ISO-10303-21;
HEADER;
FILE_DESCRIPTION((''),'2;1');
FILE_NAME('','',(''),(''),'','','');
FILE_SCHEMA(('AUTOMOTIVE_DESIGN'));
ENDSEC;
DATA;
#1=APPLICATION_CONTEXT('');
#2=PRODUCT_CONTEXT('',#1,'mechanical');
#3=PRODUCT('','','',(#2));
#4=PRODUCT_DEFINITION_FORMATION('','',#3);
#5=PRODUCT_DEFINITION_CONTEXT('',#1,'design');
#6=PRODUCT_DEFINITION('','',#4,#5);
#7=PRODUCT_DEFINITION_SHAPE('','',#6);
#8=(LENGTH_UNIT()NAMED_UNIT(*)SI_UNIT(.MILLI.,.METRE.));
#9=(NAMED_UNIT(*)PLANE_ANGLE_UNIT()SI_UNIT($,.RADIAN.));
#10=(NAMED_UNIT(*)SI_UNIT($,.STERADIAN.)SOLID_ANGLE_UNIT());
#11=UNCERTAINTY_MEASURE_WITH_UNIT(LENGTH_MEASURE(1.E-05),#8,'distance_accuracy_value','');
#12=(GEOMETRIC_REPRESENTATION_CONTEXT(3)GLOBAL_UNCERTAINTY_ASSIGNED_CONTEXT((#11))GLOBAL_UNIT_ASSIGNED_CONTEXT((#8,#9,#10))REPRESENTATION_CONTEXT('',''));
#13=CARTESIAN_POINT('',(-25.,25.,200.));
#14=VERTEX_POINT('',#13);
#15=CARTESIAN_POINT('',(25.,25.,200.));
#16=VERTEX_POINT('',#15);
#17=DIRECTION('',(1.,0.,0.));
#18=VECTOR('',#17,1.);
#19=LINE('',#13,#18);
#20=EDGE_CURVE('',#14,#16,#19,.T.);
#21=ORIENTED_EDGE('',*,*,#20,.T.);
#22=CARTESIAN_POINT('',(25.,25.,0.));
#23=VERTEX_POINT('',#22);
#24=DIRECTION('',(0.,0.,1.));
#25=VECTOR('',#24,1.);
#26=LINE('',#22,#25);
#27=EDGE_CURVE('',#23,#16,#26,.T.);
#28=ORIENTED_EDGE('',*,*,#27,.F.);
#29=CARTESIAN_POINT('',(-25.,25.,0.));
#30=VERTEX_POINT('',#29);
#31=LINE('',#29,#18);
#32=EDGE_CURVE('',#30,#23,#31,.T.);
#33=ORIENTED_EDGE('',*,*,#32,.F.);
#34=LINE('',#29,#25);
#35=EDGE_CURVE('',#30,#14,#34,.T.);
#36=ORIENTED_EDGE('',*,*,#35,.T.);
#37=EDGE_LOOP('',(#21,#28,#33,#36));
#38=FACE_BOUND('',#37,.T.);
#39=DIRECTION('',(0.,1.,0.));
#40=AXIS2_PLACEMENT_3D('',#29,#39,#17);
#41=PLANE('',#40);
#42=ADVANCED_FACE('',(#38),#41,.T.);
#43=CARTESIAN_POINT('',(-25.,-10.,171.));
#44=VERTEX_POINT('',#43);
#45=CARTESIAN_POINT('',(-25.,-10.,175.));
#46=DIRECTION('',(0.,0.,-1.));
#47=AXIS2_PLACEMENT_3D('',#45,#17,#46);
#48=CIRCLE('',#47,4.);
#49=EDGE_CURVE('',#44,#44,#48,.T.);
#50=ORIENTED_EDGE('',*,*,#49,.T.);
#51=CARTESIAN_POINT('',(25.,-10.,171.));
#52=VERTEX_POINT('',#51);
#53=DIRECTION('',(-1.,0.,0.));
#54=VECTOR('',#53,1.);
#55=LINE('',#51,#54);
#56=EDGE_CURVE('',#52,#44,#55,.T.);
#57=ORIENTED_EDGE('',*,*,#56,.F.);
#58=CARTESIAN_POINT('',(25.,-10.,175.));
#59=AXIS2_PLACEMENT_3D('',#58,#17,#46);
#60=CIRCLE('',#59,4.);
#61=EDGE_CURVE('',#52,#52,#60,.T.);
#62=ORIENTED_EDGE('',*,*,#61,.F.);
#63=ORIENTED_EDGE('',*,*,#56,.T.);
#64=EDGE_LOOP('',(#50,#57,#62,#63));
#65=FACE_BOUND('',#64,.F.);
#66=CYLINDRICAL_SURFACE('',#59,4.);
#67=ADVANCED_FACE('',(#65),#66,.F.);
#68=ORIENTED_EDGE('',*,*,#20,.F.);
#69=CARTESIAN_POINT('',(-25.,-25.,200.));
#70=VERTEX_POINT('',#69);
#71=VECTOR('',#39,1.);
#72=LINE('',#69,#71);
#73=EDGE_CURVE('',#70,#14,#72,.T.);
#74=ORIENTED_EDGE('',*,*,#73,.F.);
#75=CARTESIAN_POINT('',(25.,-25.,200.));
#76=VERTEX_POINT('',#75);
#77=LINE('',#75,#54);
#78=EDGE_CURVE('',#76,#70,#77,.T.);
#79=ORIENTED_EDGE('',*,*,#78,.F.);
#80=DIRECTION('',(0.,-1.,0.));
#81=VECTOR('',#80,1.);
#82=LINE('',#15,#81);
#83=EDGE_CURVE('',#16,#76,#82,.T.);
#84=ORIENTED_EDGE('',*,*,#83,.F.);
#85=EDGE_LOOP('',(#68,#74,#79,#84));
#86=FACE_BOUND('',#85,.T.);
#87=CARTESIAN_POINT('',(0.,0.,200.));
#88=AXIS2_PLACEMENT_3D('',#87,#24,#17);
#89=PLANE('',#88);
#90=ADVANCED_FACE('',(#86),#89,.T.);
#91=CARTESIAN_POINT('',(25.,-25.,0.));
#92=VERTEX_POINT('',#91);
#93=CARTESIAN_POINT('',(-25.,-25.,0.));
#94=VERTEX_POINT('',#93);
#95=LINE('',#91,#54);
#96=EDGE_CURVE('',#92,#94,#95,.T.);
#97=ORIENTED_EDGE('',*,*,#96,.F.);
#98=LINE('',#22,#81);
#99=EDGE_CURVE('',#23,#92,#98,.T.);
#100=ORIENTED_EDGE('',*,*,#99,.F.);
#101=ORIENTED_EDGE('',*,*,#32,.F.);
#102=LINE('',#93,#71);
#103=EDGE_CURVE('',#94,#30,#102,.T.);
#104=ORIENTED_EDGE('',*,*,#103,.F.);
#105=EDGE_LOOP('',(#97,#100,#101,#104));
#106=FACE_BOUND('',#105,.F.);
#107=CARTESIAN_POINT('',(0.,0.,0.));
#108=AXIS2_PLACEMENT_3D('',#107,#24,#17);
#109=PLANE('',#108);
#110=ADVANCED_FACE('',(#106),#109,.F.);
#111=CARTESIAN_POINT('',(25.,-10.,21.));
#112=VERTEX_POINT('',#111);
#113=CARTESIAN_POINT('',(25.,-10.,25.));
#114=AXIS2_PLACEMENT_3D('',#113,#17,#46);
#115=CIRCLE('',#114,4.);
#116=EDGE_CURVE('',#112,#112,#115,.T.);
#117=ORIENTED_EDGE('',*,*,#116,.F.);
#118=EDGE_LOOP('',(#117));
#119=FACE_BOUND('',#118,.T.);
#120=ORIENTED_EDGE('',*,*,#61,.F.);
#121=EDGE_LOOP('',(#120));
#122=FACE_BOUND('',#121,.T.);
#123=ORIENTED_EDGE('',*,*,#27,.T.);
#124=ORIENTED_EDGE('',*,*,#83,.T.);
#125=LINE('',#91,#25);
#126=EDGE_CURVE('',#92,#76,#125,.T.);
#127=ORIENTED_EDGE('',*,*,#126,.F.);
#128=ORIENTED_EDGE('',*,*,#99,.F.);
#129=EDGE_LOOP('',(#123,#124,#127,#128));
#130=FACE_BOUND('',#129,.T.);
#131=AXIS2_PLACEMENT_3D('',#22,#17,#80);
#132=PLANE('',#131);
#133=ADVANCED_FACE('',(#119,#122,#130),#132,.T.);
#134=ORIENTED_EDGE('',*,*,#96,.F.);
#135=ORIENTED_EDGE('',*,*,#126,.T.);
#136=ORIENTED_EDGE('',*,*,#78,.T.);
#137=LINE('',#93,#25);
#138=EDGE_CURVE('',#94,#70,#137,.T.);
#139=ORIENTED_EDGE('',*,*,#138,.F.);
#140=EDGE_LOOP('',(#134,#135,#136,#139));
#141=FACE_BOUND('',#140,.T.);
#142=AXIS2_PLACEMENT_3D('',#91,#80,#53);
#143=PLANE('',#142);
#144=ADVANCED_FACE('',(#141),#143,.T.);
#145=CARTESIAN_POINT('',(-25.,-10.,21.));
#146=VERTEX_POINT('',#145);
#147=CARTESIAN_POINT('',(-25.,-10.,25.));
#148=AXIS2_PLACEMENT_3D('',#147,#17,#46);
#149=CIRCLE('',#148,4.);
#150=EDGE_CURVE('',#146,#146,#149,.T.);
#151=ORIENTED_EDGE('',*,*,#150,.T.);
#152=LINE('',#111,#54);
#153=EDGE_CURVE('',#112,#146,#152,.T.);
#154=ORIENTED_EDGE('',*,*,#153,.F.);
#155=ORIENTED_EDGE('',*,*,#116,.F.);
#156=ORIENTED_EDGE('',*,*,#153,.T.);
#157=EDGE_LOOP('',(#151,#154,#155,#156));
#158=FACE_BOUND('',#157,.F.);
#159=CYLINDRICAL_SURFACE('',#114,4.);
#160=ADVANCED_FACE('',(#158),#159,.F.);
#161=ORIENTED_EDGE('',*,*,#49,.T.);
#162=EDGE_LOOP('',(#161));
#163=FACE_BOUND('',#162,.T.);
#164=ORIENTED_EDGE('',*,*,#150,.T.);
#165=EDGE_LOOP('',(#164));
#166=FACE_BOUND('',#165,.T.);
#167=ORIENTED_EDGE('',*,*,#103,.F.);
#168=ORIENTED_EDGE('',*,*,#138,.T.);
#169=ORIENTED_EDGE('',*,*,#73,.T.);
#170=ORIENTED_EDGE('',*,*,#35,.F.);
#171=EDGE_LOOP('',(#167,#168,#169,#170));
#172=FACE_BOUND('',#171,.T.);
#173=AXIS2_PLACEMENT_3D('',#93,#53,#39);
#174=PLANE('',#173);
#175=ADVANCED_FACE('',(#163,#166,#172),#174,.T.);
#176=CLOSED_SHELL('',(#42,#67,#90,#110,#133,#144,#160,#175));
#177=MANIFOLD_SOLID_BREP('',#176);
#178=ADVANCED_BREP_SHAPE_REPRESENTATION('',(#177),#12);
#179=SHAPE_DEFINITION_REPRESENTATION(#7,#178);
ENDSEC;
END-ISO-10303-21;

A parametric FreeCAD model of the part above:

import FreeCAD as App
import Part
import Sketcher
from FreeCAD import Vector

doc = App.newDocument("Part")
params = doc.addObject("Spreadsheet::Sheet", "Params")
for row, (alias, value) in enumerate([
    ("sketch1_width", "50 mm"),
    ("pad1_length", "200 mm"),
    ("sketch2_diameter", "8 mm"),
], start=1):
    params.set(f"A{row}", alias)
    params.set(f"B{row}", "=" + value)
    params.setAlias(f"B{row}", alias)

body = doc.addObject("PartDesign::Body", "Body")

# Sketch on XY plane
sketch1 = body.newObject("Sketcher::SketchObject", "Sketch")
sketch1.AttachmentSupport = (doc.getObject("XY_Plane"), [""])
sketch1.MapMode = "FlatFace"
sketch1.addGeometry(Part.LineSegment(Vector(-25, -25, 0), Vector(25, -25, 0)), False)
sketch1.addGeometry(Part.LineSegment(Vector(25, -25, 0), Vector(25, 25, 0)), False)
sketch1.addGeometry(Part.LineSegment(Vector(25, 25, 0), Vector(-25, 25, 0)), False)
sketch1.addGeometry(Part.LineSegment(Vector(-25, 25, 0), Vector(-25, -25, 0)), False)
sketch1.addConstraint(Sketcher.Constraint("Coincident", 0, 2, 1, 1))
sketch1.addConstraint(Sketcher.Constraint("Coincident", 1, 2, 2, 1))
sketch1.addConstraint(Sketcher.Constraint("Coincident", 2, 2, 3, 1))
sketch1.addConstraint(Sketcher.Constraint("Coincident", 3, 2, 0, 1))
sketch1.addConstraint(Sketcher.Constraint("Horizontal", 0))
sketch1.addConstraint(Sketcher.Constraint("Vertical", 1))
sketch1.addConstraint(Sketcher.Constraint("Horizontal", 2))
sketch1.addConstraint(Sketcher.Constraint("Vertical", 3))
sketch1.addConstraint(Sketcher.Constraint("Symmetric", 0, 2, 2, 2, -1, 1))
sketch1.addConstraint(Sketcher.Constraint("Equal", 2, 1))
sketch1.addConstraint(Sketcher.Constraint("DistanceX", 0, 1, 0, 2, 50.0))
sketch1.setExpression("Constraints[10]", "Params.sketch1_width")
pad1 = body.newObject("PartDesign::Pad", "Pad")
pad1.Profile = sketch1
pad1.setExpression("Length", "Params.pad1_length")

# Sketch on YZ plane
sketch2 = body.newObject("Sketcher::SketchObject", "Sketch001")
sketch2.AttachmentSupport = (doc.getObject("YZ_Plane"), [""])
sketch2.MapMode = "FlatFace"
sketch2.AttachmentOffset = App.Placement(Vector(0, 0, 25), App.Rotation())
sketch2.addGeometry(Part.Circle(Vector(-10, 175, 0), Vector(0, 0, 1), 4), False)
sketch2.addGeometry(Part.Circle(Vector(-10, 25, 0), Vector(0, 0, 1), 4), False)
sketch2.addConstraint(Sketcher.Constraint("Equal", 0, 1))
sketch2.addConstraint(Sketcher.Constraint("Vertical", 0, 3, 1, 3))
sketch2.addConstraint(Sketcher.Constraint("Diameter", 0, 8.0))
sketch2.addConstraint(Sketcher.Constraint("DistanceY", -1, 1, 1, 3, 25.0))
sketch2.addConstraint(Sketcher.Constraint("DistanceX", 0, 3, -1, 1, 10.0))
sketch2.addConstraint(Sketcher.Constraint("DistanceY", -1, 1, 0, 3, 175.0))
sketch2.setExpression("Constraints[2]", "Params.sketch2_diameter")
pocket1 = body.newObject("PartDesign::Pocket", "Pocket")
pocket1.Profile = sketch2
pocket1.Type = "ThroughAll"

doc.recompute()
